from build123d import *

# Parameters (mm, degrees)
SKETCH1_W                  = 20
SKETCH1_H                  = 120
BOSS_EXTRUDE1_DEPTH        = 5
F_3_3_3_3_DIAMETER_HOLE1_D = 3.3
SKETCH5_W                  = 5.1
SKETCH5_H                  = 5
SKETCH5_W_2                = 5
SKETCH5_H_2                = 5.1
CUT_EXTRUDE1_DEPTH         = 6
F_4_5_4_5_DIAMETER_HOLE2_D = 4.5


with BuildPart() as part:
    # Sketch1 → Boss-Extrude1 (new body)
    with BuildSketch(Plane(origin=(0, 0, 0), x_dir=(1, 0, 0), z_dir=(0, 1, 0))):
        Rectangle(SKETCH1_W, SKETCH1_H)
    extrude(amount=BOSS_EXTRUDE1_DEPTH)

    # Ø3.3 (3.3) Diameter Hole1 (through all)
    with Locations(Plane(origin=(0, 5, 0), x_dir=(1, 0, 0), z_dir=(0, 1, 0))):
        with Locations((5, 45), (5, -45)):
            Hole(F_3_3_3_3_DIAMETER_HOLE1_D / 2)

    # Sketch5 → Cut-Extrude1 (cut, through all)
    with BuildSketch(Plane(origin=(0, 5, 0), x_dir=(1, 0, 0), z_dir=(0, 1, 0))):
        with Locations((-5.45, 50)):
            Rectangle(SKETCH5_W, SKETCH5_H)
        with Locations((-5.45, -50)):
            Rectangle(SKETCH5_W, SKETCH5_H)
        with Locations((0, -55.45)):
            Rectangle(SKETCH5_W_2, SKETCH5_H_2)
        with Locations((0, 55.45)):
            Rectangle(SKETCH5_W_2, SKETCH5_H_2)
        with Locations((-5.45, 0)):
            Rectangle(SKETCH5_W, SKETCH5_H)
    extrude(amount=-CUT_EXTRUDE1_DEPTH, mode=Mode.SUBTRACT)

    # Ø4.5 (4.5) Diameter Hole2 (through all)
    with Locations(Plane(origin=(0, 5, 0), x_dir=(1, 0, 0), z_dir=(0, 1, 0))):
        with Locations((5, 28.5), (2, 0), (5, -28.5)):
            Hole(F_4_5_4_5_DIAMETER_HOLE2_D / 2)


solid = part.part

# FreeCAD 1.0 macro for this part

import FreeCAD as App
import Part
import Sketcher
from FreeCAD import Vector

doc = App.newDocument("Part")
body = doc.addObject("PartDesign::Body", "Body")

sketch1 = body.newObject("Sketcher::SketchObject", "Sketch")
sketch1.AttachmentSupport = (doc.getObject("XZ_Plane"), [""])
sketch1.MapMode = "FlatFace"
sketch1.addGeometry(Part.LineSegment(Vector(-10, -60, 0), Vector(-10, 60, 0)), False)
sketch1.addGeometry(Part.LineSegment(Vector(-10, 60, 0), Vector(10, 60, 0)), False)
sketch1.addGeometry(Part.LineSegment(Vector(10, 60, 0), Vector(10, -60, 0)), False)
sketch1.addGeometry(Part.LineSegment(Vector(10, -60, 0), Vector(-10, -60, 0)), False)
sketch1.addConstraint(Sketcher.Constraint("Coincident", 0, 2, 1, 1))
sketch1.addConstraint(Sketcher.Constraint("Coincident", 1, 2, 2, 1))
sketch1.addConstraint(Sketcher.Constraint("Coincident", 2, 2, 3, 1))
sketch1.addConstraint(Sketcher.Constraint("Coincident", 3, 2, 0, 1))
sketch1.addConstraint(Sketcher.Constraint("Vertical", 0))
sketch1.addConstraint(Sketcher.Constraint("Horizontal", 1))
sketch1.addConstraint(Sketcher.Constraint("Vertical", 2))
sketch1.addConstraint(Sketcher.Constraint("Horizontal", 3))
sketch1.addConstraint(Sketcher.Constraint("Symmetric", 0, 2, 2, 2, -1, 1))
sketch1.addConstraint(Sketcher.Constraint("DistanceX", 1, 1, 1, 2, 20.0))
sketch1.addConstraint(Sketcher.Constraint("DistanceY", 0, 1, 0, 2, 120.0))
pad1 = body.newObject("PartDesign::Pad", "Pad")
pad1.Profile = sketch1
pad1.Length = 5
pad1.Reversed = True

sketch2 = body.newObject("Sketcher::SketchObject", "Sketch001")
sketch2.AttachmentSupport = (doc.getObject("XZ_Plane"), [""])
sketch2.MapMode = "FlatFace"
sketch2.AttachmentOffset = App.Placement(Vector(0, 0, -5), App.Rotation())
sketch2.addGeometry(Part.Circle(Vector(5, -45, 0), Vector(0, 0, 1), 1.65), False)
sketch2.addGeometry(Part.Circle(Vector(5, 45, 0), Vector(0, 0, 1), 1.65), False)
sketch2.addConstraint(Sketcher.Constraint("Equal", 0, 1))
sketch2.addConstraint(Sketcher.Constraint("Symmetric", 0, 3, 1, 3, -1))
sketch2.addConstraint(Sketcher.Constraint("Diameter", 0, 3.3))
sketch2.addConstraint(Sketcher.Constraint("DistanceX", -1, 1, 0, 3, 5.0))
sketch2.addConstraint(Sketcher.Constraint("DistanceY", 0, 3, -1, 1, 45.0))
doc.recompute()
hole = body.newObject("PartDesign::Hole", "Hole")
hole.Profile = sketch2
hole.ThreadType = "None"
hole.Diameter = 3.3
hole.DepthType = "ThroughAll"
hole.Reversed = True

sketch3 = body.newObject("Sketcher::SketchObject", "Sketch002")
sketch3.AttachmentSupport = (doc.getObject("XZ_Plane"), [""])
sketch3.MapMode = "FlatFace"
sketch3.AttachmentOffset = App.Placement(Vector(0, 0, -5), App.Rotation())
sketch3.addGeometry(Part.LineSegment(Vector(-8, -52.5, 0), Vector(-8, -47.5, 0)), False)
sketch3.addGeometry(Part.LineSegment(Vector(-8, -47.5, 0), Vector(-2.9, -47.5, 0)), False)
sketch3.addGeometry(Part.LineSegment(Vector(-2.9, -47.5, 0), Vector(-2.9, -52.5, 0)), False)
sketch3.addGeometry(Part.LineSegment(Vector(-2.9, -52.5, 0), Vector(-8, -52.5, 0)), False)
sketch3.addGeometry(Part.LineSegment(Vector(-8, 47.5, 0), Vector(-8, 52.5, 0)), False)
sketch3.addGeometry(Part.LineSegment(Vector(-8, 52.5, 0), Vector(-2.9, 52.5, 0)), False)
sketch3.addGeometry(Part.LineSegment(Vector(-2.9, 52.5, 0), Vector(-2.9, 47.5, 0)), False)
sketch3.addGeometry(Part.LineSegment(Vector(-2.9, 47.5, 0), Vector(-8, 47.5, 0)), False)
sketch3.addGeometry(Part.LineSegment(Vector(-2.5, 52.9, 0), Vector(-2.5, 58, 0)), False)
sketch3.addGeometry(Part.LineSegment(Vector(-2.5, 58, 0), Vector(2.5, 58, 0)), False)
sketch3.addGeometry(Part.LineSegment(Vector(2.5, 58, 0), Vector(2.5, 52.9, 0)), False)
sketch3.addGeometry(Part.LineSegment(Vector(2.5, 52.9, 0), Vector(-2.5, 52.9, 0)), False)
sketch3.addGeometry(Part.LineSegment(Vector(-2.5, -58, 0), Vector(-2.5, -52.9, 0)), False)
sketch3.addGeometry(Part.LineSegment(Vector(-2.5, -52.9, 0), Vector(2.5, -52.9, 0)), False)
sketch3.addGeometry(Part.LineSegment(Vector(2.5, -52.9, 0), Vector(2.5, -58, 0)), False)
sketch3.addGeometry(Part.LineSegment(Vector(2.5, -58, 0), Vector(-2.5, -58, 0)), False)
sketch3.addGeometry(Part.LineSegment(Vector(-8, -2.5, 0), Vector(-8, 2.5, 0)), False)
sketch3.addGeometry(Part.LineSegment(Vector(-8, 2.5, 0), Vector(-2.9, 2.5, 0)), False)
sketch3.addGeometry(Part.LineSegment(Vector(-2.9, 2.5, 0), Vector(-2.9, -2.5, 0)), False)
sketch3.addGeometry(Part.LineSegment(Vector(-2.9, -2.5, 0), Vector(-8, -2.5, 0)), False)
sketch3.addConstraint(Sketcher.Constraint("Coincident", 0, 2, 1, 1))
sketch3.addConstraint(Sketcher.Constraint("Coincident", 1, 2, 2, 1))
sketch3.addConstraint(Sketcher.Constraint("Coincident", 2, 2, 3, 1))
sketch3.addConstraint(Sketcher.Constraint("Coincident", 3, 2, 0, 1))
sketch3.addConstraint(Sketcher.Constraint("Coincident", 4, 2, 5, 1))
sketch3.addConstraint(Sketcher.Constraint("Coincident", 5, 2, 6, 1))
sketch3.addConstraint(Sketcher.Constraint("Coincident", 6, 2, 7, 1))
sketch3.addConstraint(Sketcher.Constraint("Coincident", 7, 2, 4, 1))
sketch3.addConstraint(Sketcher.Constraint("Coincident", 8, 2, 9, 1))
sketch3.addConstraint(Sketcher.Constraint("Coincident", 9, 2, 10, 1))
sketch3.addConstraint(Sketcher.Constraint("Coincident", 10, 2, 11, 1))
sketch3.addConstraint(Sketcher.Constraint("Coincident", 11, 2, 8, 1))
sketch3.addConstraint(Sketcher.Constraint("Coincident", 12, 2, 13, 1))
sketch3.addConstraint(Sketcher.Constraint("Coincident", 13, 2, 14, 1))
sketch3.addConstraint(Sketcher.Constraint("Coincident", 14, 2, 15, 1))
sketch3.addConstraint(Sketcher.Constraint("Coincident", 15, 2, 12, 1))
sketch3.addConstraint(Sketcher.Constraint("Coincident", 16, 2, 17, 1))
sketch3.addConstraint(Sketcher.Constraint("Coincident", 17, 2, 18, 1))
sketch3.addConstraint(Sketcher.Constraint("Coincident", 18, 2, 19, 1))
sketch3.addConstraint(Sketcher.Constraint("Coincident", 19, 2, 16, 1))
sketch3.addConstraint(Sketcher.Constraint("Vertical", 0))
sketch3.addConstraint(Sketcher.Constraint("Horizontal", 1))
sketch3.addConstraint(Sketcher.Constraint("Vertical", 2))
sketch3.addConstraint(Sketcher.Constraint("Horizontal", 3))
sketch3.addConstraint(Sketcher.Constraint("Vertical", 4))
sketch3.addConstraint(Sketcher.Constraint("Horizontal", 5))
sketch3.addConstraint(Sketcher.Constraint("Vertical", 6))
sketch3.addConstraint(Sketcher.Constraint("Horizontal", 7))
sketch3.addConstraint(Sketcher.Constraint("Vertical", 8))
sketch3.addConstraint(Sketcher.Constraint("Horizontal", 9))
sketch3.addConstraint(Sketcher.Constraint("Vertical", 10))
sketch3.addConstraint(Sketcher.Constraint("Horizontal", 11))
sketch3.addConstraint(Sketcher.Constraint("Vertical", 12))
sketch3.addConstraint(Sketcher.Constraint("Horizontal", 13))
sketch3.addConstraint(Sketcher.Constraint("Vertical", 14))
sketch3.addConstraint(Sketcher.Constraint("Horizontal", 15))
sketch3.addConstraint(Sketcher.Constraint("Vertical", 16))
sketch3.addConstraint(Sketcher.Constraint("Horizontal", 17))
sketch3.addConstraint(Sketcher.Constraint("Vertical", 18))
sketch3.addConstraint(Sketcher.Constraint("Horizontal", 19))
sketch3.addConstraint(Sketcher.Constraint("Symmetric", 10, 2, 12, 2, -1, 1))
sketch3.addConstraint(Sketcher.Constraint("Symmetric", 8, 2, 14, 2, -1, 1))
sketch3.addConstraint(Sketcher.Constraint("Symmetric", 3, 2, 4, 2, -1))
sketch3.addConstraint(Sketcher.Constraint("Symmetric", 1, 2, 6, 2, -1))
sketch3.addConstraint(Sketcher.Constraint("Vertical", 11, 2, 12, 2))
sketch3.addConstraint(Sketcher.Constraint("Vertical", 7, 2, 16, 2))
sketch3.addConstraint(Sketcher.Constraint("Vertical", 6, 2, 17, 2))
sketch3.addConstraint(Sketcher.Constraint("Equal", 15, 0))
sketch3.addConstraint(Sketcher.Constraint("Equal", 19, 8))
sketch3.addConstraint(Sketcher.Constraint("Equal", 6, 16))
sketch3.addConstraint(Sketcher.Constraint("DistanceX", 9, 1, 9, 2, 5.0))
sketch3.addConstraint(Sketcher.Constraint("DistanceX", 1, 1, 1, 2, 5.1))
sketch3.addConstraint(Sketcher.Constraint("DistanceX", 0, 2, -1, 1, 8.0))
sketch3.addConstraint(Sketcher.Constraint("DistanceY", -1, 1, 8, 2, 58.0))
sketch3.addConstraint(Sketcher.Constraint("DistanceY", 0, 2, 4, 2, 100.0))
sketch3.addConstraint(Sketcher.Constraint("DistanceY", 16, 2, 7, 2, 45.0))
pocket1 = body.newObject("PartDesign::Pocket", "Pocket")
pocket1.Profile = sketch3
pocket1.Type = "ThroughAll"
pocket1.Reversed = True

sketch4 = body.newObject("Sketcher::SketchObject", "Sketch003")
sketch4.AttachmentSupport = (doc.getObject("XZ_Plane"), [""])
sketch4.MapMode = "FlatFace"
sketch4.AttachmentOffset = App.Placement(Vector(0, 0, -5), App.Rotation())
sketch4.addGeometry(Part.Circle(Vector(5, -28.5, 0), Vector(0, 0, 1), 2.25), False)
sketch4.addGeometry(Part.Circle(Vector(2, 0, 0), Vector(0, 0, 1), 2.25), False)
sketch4.addGeometry(Part.Circle(Vector(5, 28.5, 0), Vector(0, 0, 1), 2.25), False)
sketch4.addConstraint(Sketcher.Constraint("Equal", 0, 1))
sketch4.addConstraint(Sketcher.Constraint("Equal", 1, 2))
sketch4.addConstraint(Sketcher.Constraint("Symmetric", 0, 3, 2, 3, -1))
sketch4.addConstraint(Sketcher.Constraint("PointOnObject", 1, 3, -1))
sketch4.addConstraint(Sketcher.Constraint("Diameter", 0, 4.5))
sketch4.addConstraint(Sketcher.Constraint("DistanceX", -1, 1, 0, 3, 5.0))
sketch4.addConstraint(Sketcher.Constraint("DistanceX", -1, 1, 1, 3, 2.0))
sketch4.addConstraint(Sketcher.Constraint("DistanceY", 0, 3, 2, 3, 57.0))
doc.recompute()
hole2 = body.newObject("PartDesign::Hole", "Hole001")
hole2.Profile = sketch4
hole2.ThreadType = "None"
hole2.Diameter = 4.5
hole2.DepthType = "ThroughAll"
hole2.Reversed = True

doc.recompute()
